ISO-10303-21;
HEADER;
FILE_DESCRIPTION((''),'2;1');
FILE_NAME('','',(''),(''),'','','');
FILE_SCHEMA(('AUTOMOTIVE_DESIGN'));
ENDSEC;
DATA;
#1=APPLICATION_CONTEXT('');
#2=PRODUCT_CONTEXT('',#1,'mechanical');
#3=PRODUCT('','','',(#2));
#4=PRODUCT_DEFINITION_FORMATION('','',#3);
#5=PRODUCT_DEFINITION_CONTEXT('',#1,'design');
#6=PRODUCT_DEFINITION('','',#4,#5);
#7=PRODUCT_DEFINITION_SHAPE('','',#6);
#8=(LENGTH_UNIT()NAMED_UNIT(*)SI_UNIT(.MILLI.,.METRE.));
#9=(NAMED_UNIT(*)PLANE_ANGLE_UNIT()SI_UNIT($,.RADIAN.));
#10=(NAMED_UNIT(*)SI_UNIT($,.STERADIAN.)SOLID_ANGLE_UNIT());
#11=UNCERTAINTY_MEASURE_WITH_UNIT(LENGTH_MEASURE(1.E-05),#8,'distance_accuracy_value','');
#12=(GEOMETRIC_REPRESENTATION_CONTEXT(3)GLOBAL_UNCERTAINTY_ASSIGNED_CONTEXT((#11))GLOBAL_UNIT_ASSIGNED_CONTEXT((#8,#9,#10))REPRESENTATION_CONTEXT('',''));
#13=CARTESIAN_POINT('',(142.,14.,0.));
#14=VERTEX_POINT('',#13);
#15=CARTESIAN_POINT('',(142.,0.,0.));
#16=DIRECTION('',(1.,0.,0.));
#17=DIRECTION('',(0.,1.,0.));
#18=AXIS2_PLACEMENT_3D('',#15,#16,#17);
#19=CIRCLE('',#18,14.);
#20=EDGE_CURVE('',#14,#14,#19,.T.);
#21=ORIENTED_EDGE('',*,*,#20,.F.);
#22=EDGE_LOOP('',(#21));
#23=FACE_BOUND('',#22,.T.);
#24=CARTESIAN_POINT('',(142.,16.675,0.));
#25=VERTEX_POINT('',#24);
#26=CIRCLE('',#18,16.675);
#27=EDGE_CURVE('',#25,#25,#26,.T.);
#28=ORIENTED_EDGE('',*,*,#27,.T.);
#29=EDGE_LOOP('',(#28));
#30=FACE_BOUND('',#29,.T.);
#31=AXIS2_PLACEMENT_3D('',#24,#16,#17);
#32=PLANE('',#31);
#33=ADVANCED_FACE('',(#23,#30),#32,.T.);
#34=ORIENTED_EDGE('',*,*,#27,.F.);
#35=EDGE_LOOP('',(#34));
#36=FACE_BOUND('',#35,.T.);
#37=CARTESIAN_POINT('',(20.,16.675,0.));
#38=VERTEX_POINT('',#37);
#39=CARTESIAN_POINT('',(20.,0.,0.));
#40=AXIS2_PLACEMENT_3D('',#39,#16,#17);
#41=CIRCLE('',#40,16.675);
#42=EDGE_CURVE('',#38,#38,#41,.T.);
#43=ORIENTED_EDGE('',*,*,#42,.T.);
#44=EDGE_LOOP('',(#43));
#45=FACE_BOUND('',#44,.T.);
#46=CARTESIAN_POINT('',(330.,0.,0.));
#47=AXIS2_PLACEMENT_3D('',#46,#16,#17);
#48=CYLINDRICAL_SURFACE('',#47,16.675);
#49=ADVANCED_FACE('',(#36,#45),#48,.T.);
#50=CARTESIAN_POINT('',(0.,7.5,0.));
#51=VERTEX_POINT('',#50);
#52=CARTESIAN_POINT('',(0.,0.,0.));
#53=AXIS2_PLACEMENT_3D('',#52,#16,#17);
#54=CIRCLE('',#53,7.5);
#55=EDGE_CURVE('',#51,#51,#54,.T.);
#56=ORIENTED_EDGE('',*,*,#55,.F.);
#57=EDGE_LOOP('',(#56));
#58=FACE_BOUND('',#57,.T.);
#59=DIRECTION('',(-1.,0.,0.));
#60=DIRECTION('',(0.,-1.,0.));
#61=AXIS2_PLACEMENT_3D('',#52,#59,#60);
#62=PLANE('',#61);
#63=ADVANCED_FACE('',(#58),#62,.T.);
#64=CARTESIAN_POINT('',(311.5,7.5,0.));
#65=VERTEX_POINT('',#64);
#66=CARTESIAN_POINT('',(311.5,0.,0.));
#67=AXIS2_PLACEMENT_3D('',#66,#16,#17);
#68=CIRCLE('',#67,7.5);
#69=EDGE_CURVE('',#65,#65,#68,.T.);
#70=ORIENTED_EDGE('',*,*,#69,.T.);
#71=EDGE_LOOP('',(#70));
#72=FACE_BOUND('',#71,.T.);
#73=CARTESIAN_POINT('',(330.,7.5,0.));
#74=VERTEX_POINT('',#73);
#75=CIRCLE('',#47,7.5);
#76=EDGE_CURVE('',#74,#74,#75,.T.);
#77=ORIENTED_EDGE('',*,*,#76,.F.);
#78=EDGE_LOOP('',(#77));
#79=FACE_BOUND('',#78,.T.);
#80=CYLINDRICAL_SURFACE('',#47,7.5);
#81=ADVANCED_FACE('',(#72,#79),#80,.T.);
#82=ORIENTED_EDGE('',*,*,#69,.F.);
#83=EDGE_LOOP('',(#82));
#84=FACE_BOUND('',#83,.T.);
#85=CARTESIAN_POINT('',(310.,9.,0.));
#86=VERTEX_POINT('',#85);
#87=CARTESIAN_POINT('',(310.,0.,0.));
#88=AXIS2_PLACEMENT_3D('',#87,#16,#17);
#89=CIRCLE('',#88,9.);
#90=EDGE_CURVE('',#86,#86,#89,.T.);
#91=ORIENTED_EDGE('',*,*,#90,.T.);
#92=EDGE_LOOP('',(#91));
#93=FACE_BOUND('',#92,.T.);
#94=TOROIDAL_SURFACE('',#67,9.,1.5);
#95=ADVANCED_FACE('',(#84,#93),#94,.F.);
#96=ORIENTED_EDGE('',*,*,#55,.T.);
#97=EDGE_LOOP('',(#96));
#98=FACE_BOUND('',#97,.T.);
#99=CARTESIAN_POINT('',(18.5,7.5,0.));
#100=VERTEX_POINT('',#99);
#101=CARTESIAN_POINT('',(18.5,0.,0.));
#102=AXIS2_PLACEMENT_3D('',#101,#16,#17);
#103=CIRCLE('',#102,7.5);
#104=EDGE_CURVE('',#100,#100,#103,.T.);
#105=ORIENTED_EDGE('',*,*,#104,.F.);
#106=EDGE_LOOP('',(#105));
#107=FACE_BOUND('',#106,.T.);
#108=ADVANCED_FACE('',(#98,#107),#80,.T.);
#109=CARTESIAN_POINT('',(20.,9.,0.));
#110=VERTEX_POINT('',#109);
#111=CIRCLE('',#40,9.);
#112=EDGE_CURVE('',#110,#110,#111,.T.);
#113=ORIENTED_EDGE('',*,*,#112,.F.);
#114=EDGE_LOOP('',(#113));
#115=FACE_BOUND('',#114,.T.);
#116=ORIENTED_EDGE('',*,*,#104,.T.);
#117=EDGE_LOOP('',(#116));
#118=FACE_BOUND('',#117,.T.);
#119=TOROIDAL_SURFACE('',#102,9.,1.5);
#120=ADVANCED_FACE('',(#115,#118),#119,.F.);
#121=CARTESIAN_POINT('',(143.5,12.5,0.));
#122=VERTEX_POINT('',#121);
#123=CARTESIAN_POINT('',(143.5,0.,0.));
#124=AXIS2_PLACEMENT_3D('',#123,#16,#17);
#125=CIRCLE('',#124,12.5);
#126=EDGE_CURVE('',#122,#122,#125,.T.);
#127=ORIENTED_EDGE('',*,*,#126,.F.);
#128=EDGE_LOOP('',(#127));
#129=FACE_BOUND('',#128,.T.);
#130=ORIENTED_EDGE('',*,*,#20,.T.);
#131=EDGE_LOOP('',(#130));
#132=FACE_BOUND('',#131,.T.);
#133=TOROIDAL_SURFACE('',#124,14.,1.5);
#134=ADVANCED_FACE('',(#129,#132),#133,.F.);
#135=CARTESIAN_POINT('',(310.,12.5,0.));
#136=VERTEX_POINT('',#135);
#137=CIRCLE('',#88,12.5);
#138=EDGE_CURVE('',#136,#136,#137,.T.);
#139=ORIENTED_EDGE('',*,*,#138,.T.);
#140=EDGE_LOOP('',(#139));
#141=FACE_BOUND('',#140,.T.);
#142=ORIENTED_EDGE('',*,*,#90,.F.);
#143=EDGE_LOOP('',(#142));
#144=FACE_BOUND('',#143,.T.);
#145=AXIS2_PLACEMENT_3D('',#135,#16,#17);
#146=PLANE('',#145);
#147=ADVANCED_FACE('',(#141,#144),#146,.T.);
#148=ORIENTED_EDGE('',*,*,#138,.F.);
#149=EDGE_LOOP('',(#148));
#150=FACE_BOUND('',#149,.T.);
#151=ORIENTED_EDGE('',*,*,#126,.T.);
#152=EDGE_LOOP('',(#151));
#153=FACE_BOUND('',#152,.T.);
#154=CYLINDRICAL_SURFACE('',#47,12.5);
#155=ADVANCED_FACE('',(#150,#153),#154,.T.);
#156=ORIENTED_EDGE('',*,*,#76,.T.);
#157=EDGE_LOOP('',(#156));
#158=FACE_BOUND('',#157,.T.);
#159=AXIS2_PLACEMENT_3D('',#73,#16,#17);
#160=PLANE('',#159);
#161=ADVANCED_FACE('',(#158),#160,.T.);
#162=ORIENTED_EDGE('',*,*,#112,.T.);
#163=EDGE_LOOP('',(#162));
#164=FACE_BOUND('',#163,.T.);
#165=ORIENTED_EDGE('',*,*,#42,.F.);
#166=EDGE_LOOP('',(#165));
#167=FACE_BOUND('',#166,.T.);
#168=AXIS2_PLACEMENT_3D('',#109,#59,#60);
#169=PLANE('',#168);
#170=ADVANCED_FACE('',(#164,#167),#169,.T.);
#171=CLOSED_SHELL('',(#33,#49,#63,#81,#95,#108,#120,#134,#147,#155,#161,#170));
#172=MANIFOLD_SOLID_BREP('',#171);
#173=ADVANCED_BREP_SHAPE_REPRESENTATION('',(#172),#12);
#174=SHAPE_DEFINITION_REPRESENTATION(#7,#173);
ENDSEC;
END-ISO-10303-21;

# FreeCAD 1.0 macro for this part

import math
import FreeCAD as App
import Part
import Sketcher

doc = App.newDocument("Part")
params = doc.addObject("Spreadsheet::Sheet", "Params")
for row, (alias, value) in enumerate([
    ("sketch1_radius", "1.5 mm"),
    ("sketch1_width", "330 mm"),
    ("sketch1_width2", "122 mm"),
    ("sketch1_width3", "18.5 mm"),
    ("sketch1_height", "7.5 mm"),
    ("revolution_angle", "360 deg"),
], start=1):
    params.set(f"A{row}", alias)
    params.set(f"B{row}", "=" + value)
    params.setAlias(f"B{row}", alias)

body = doc.addObject("PartDesign::Body", "Body")

# Sketch on XY plane
sketch1 = body.newObject("Sketcher::SketchObject", "Sketch")
sketch1.AttachmentSupport = (doc.getObject("XY_Plane"), [""])
sketch1.MapMode = "FlatFace"
sketch1.addGeometry(Part.LineSegment(App.Vector(0, 7.5, 0), App.Vector(0, 0, 0)), False)
sketch1.addGeometry(Part.LineSegment(App.Vector(0, 0, 0), App.Vector(330, 0, 0)), False)
sketch1.addGeometry(Part.LineSegment(App.Vector(330, 0, 0), App.Vector(330, 7.5, 0)), False)
sketch1.addGeometry(Part.LineSegment(App.Vector(330, 7.5, 0), App.Vector(311.5, 7.5, 0)), False)
sketch1.addGeometry(Part.ArcOfCircle(Part.Circle(App.Vector(311.5, 9, 0), App.Vector(0, 0, 1), 1.5), math.radians(180), math.radians(270)), False)
sketch1.addGeometry(Part.LineSegment(App.Vector(310, 9, 0), App.Vector(310, 12.5, 0)), False)
sketch1.addGeometry(Part.LineSegment(App.Vector(310, 12.5, 0), App.Vector(143.5, 12.5, 0)), False)
sketch1.addGeometry(Part.ArcOfCircle(Part.Circle(App.Vector(143.5, 14, 0), App.Vector(0, 0, 1), 1.5), math.radians(180), math.radians(270)), False)
sketch1.addGeometry(Part.LineSegment(App.Vector(142, 14, 0), App.Vector(142, 16.7, 0)), False)
sketch1.addGeometry(Part.LineSegment(App.Vector(142, 16.7, 0), App.Vector(20, 16.7, 0)), False)
sketch1.addGeometry(Part.LineSegment(App.Vector(20, 16.7, 0), App.Vector(20, 9, 0)), False)
sketch1.addGeometry(Part.ArcOfCircle(Part.Circle(App.Vector(18.5, 9, 0), App.Vector(0, 0, 1), 1.5), math.radians(-90), math.radians(0)), False)
sketch1.addGeometry(Part.LineSegment(App.Vector(18.5, 7.5, 0), App.Vector(0, 7.5, 0)), False)
sketch1.addConstraint(Sketcher.Constraint("Coincident", 0, 2, 1, 1))
sketch1.addConstraint(Sketcher.Constraint("Coincident", 1, 2, 2, 1))
sketch1.addConstraint(Sketcher.Constraint("Coincident", 2, 2, 3, 1))
sketch1.addConstraint(Sketcher.Constraint("Tangent", 3, 2, 4, 2))
sketch1.addConstraint(Sketcher.Constraint("Tangent", 4, 1, 5, 1))
sketch1.addConstraint(Sketcher.Constraint("Coincident", 5, 2, 6, 1))
sketch1.addConstraint(Sketcher.Constraint("Tangent", 6, 2, 7, 2))
sketch1.addConstraint(Sketcher.Constraint("Tangent", 7, 1, 8, 1))
sketch1.addConstraint(Sketcher.Constraint("Coincident", 8, 2, 9, 1))
sketch1.addConstraint(Sketcher.Constraint("Coincident", 9, 2, 10, 1))
sketch1.addConstraint(Sketcher.Constraint("Tangent", 10, 2, 11, 2))
sketch1.addConstraint(Sketcher.Constraint("Tangent", 11, 1, 12, 1))
sketch1.addConstraint(Sketcher.Constraint("Coincident", 12, 2, 0, 1))
sketch1.addConstraint(Sketcher.Constraint("Vertical", 0))
sketch1.addConstraint(Sketcher.Constraint("Horizontal", 1))
sketch1.addConstraint(Sketcher.Constraint("Vertical", 2))
sketch1.addConstraint(Sketcher.Constraint("Horizontal", 3))
sketch1.addConstraint(Sketcher.Constraint("Vertical", 5))
sketch1.addConstraint(Sketcher.Constraint("Horizontal", 6))
sketch1.addConstraint(Sketcher.Constraint("Vertical", 8))
sketch1.addConstraint(Sketcher.Constraint("Horizontal", 9))
sketch1.addConstraint(Sketcher.Constraint("Vertical", 10))
sketch1.addConstraint(Sketcher.Constraint("Horizontal", 12))
sketch1.addConstraint(Sketcher.Constraint("Coincident", 0, 2, -1, 1))
sketch1.addConstraint(Sketcher.Constraint("Equal", 4, 7))
sketch1.addConstraint(Sketcher.Constraint("Equal", 7, 11))
sketch1.addConstraint(Sketcher.Constraint("Horizontal", 4, 3, 11, 3))
sketch1.addConstraint(Sketcher.Constraint("Equal", 3, 12))
sketch1.addConstraint(Sketcher.Constraint("Radius", 4, 1.5))
sketch1.addConstraint(Sketcher.Constraint("DistanceX", 1, 1, 1, 2, 330.0))
sketch1.addConstraint(Sketcher.Constraint("DistanceX", 9, 2, 9, 1, 122.0))
sketch1.addConstraint(Sketcher.Constraint("DistanceX", 3, 2, 3, 1, 18.5))
sketch1.addConstraint(Sketcher.Constraint("DistanceY", 0, 2, 0, 1, 7.5))
sketch1.addConstraint(Sketcher.Constraint("DistanceY", 5, 1, 5, 2, 3.5))
sketch1.addConstraint(Sketcher.Constraint("DistanceY", 8, 1, 8, 2, 2.675))
sketch1.setExpression("Constraints[28]", "Params.sketch1_radius")
sketch1.setExpression("Constraints[29]", "Params.sketch1_width")
sketch1.setExpression("Constraints[30]", "Params.sketch1_width2")
sketch1.setExpression("Constraints[31]", "Params.sketch1_width3")
sketch1.setExpression("Constraints[32]", "Params.sketch1_height")
revolution = body.newObject("PartDesign::Revolution", "Revolution")
revolution.Profile = sketch1
revolution.ReferenceAxis = (sketch1, ["H_Axis"])
revolution.setExpression("Angle", "Params.revolution_angle")

doc.recompute()
